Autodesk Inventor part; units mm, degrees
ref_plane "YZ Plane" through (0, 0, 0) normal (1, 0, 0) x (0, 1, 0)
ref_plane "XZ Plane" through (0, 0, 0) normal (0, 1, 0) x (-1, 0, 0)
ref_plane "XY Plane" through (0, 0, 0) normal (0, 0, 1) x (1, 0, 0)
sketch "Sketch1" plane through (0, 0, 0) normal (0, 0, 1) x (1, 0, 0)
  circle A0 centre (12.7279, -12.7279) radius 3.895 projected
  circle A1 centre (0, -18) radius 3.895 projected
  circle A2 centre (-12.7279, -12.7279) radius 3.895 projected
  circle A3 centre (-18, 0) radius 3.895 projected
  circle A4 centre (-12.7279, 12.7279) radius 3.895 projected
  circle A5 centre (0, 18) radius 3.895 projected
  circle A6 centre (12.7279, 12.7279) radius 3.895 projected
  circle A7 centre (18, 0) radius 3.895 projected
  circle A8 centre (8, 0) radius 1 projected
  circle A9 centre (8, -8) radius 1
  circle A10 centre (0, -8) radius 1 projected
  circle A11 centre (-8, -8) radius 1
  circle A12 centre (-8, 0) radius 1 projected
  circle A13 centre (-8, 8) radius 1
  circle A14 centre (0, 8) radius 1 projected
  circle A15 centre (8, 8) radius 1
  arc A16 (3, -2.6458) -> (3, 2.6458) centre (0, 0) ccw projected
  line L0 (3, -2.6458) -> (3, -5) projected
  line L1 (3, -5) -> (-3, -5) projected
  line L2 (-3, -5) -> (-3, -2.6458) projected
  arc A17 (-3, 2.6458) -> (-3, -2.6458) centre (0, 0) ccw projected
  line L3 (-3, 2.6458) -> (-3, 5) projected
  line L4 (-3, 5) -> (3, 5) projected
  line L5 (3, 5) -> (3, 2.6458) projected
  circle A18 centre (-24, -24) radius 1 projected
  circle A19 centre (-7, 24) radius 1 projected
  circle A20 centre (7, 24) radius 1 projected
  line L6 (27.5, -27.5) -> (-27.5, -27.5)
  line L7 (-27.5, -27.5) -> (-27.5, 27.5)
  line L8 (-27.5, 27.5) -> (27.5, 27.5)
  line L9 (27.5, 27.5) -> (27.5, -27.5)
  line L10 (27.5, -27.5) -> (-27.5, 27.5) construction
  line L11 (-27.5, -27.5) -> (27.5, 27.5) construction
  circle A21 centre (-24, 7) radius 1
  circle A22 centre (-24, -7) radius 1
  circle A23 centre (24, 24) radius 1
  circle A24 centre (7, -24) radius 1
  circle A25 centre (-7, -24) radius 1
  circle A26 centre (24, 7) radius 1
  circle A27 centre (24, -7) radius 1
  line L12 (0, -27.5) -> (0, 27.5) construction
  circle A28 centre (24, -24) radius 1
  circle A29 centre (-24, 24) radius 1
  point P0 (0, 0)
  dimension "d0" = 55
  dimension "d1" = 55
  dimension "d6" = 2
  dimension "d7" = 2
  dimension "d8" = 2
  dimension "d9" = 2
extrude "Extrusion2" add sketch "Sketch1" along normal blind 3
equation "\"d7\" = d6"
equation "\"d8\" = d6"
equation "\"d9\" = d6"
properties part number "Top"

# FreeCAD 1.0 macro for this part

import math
import FreeCAD as App
import Part
import Sketcher
Q = App.Units.Quantity


def add_polygon(sketch, points):
    """Adds a closed chain of lines whose ends are joined by coincident constraints."""
    first, n = sketch.GeometryCount, len(points)
    for a, b in zip(points, points[1:] + points[:1]):
        sketch.addGeometry(Part.LineSegment(App.Vector(*a, 0), App.Vector(*b, 0)), False)
    for i in range(n):
        sketch.addConstraint(Sketcher.Constraint("Coincident", first + i, 2, first + (i + 1) % n, 1))

doc = App.newDocument("Part")
params = doc.addObject("Spreadsheet::Sheet", "Params")
for row, (alias, value) in enumerate([
    ("sketch1_diameter", "2 mm"),
    ("sketch1_width", "55 mm"),
    ("sketch1_radius", "4 mm"),
    ("sketch1_diameter2", "7.79 mm"),
    ("sketch1_width2", "6 mm"),
    ("pad1_length", "3 mm"),
], start=1):
    params.set(f"A{row}", alias)
    params.set(f"B{row}", "=" + value)
    params.setAlias(f"B{row}", alias)

body = doc.addObject("PartDesign::Body", "Body")

# Sketch on XY plane
sketch1 = doc.addObject("Sketcher::SketchObject", "Sketch")
body.addObject(sketch1)
sketch1.AttachmentSupport = (doc.XY_Plane, [""])
sketch1.MapMode = "FlatFace"
add_polygon(sketch1, [(-27.5, -27.5), (27.5, -27.5), (27.5, 27.5), (-27.5, 27.5)])  # lines 0-3
sketch1.addGeometry(Part.Circle(App.Vector(-24, -24, 0), App.Vector(0, 0, 1), 1), False)  # 4
sketch1.addGeometry(Part.Circle(App.Vector(-7, -24, 0), App.Vector(0, 0, 1), 1), False)  # 5
sketch1.addGeometry(Part.Circle(App.Vector(-24, -7, 0), App.Vector(0, 0, 1), 1), False)  # 6
sketch1.addGeometry(Part.Circle(App.Vector(-12.7, -12.7, 0), App.Vector(0, 0, 1), 3.9), False)  # 7
sketch1.addGeometry(Part.Circle(App.Vector(-8, -8, 0), App.Vector(0, 0, 1), 1), False)  # 8
sketch1.addGeometry(Part.Circle(App.Vector(7, -24, 0), App.Vector(0, 0, 1), 1), False)  # 9
sketch1.addGeometry(Part.Circle(App.Vector(0, -18, 0), App.Vector(0, 0, 1), 3.9), False)  # 10
sketch1.addGeometry(Part.Circle(App.Vector(24, -24, 0), App.Vector(0, 0, 1), 1), False)  # 11
sketch1.addGeometry(Part.Circle(App.Vector(0, -8, 0), App.Vector(0, 0, 1), 1), False)  # 12
sketch1.addGeometry(Part.Circle(App.Vector(12.7, -12.7, 0), App.Vector(0, 0, 1), 3.9), False)  # 13
sketch1.addGeometry(Part.Circle(App.Vector(8, -8, 0), App.Vector(0, 0, 1), 1), False)  # 14
sketch1.addGeometry(Part.Circle(App.Vector(24, -7, 0), App.Vector(0, 0, 1), 1), False)  # 15
sketch1.addGeometry(Part.Circle(App.Vector(-18, 0, 0), App.Vector(0, 0, 1), 3.9), False)  # 16
sketch1.addGeometry(Part.Circle(App.Vector(-24, 7, 0), App.Vector(0, 0, 1), 1), False)  # 17
sketch1.addGeometry(Part.Circle(App.Vector(-8, 0, 0), App.Vector(0, 0, 1), 1), False)  # 18
sketch1.addGeometry(Part.Circle(App.Vector(-8, 8, 0), App.Vector(0, 0, 1), 1), False)  # 19
sketch1.addGeometry(Part.Circle(App.Vector(-12.7, 12.7, 0), App.Vector(0, 0, 1), 3.9), False)  # 20
sketch1.addGeometry(Part.Circle(App.Vector(-24, 24, 0), App.Vector(0, 0, 1), 1), False)  # 21
sketch1.addGeometry(Part.Circle(App.Vector(-7, 24, 0), App.Vector(0, 0, 1), 1), False)  # 22
sketch1.addGeometry(Part.ArcOfCircle(Part.Circle(App.Vector(0, 0, 0), App.Vector(0, 0, 1), 4), math.radians(-41), math.radians(41)), False)  # 23
sketch1.addGeometry(Part.LineSegment(App.Vector(3, -2.6, 0), App.Vector(3, -5, 0)), False)  # 24
sketch1.addGeometry(Part.LineSegment(App.Vector(3, -5, 0), App.Vector(-3, -5, 0)), False)  # 25
sketch1.addGeometry(Part.LineSegment(App.Vector(-3, -5, 0), App.Vector(-3, -2.6, 0)), False)  # 26
sketch1.addGeometry(Part.ArcOfCircle(Part.Circle(App.Vector(0, 0, 0), App.Vector(0, 0, 1), 4), math.radians(139), math.radians(221)), False)  # 27
sketch1.addGeometry(Part.LineSegment(App.Vector(-3, 2.6, 0), App.Vector(-3, 5, 0)), False)  # 28
sketch1.addGeometry(Part.LineSegment(App.Vector(-3, 5, 0), App.Vector(3, 5, 0)), False)  # 29
sketch1.addGeometry(Part.LineSegment(App.Vector(3, 5, 0), App.Vector(3, 2.6, 0)), False)  # 30
sketch1.addGeometry(Part.Circle(App.Vector(8, 0, 0), App.Vector(0, 0, 1), 1), False)  # 31
sketch1.addGeometry(Part.Circle(App.Vector(0, 8, 0), App.Vector(0, 0, 1), 1), False)  # 32
sketch1.addGeometry(Part.Circle(App.Vector(8, 8, 0), App.Vector(0, 0, 1), 1), False)  # 33
sketch1.addGeometry(Part.Circle(App.Vector(12.7, 12.7, 0), App.Vector(0, 0, 1), 3.9), False)  # 34
sketch1.addGeometry(Part.Circle(App.Vector(18, 0, 0), App.Vector(0, 0, 1), 3.9), False)  # 35
sketch1.addGeometry(Part.Circle(App.Vector(24, 7, 0), App.Vector(0, 0, 1), 1), False)  # 36
sketch1.addGeometry(Part.Circle(App.Vector(0, 18, 0), App.Vector(0, 0, 1), 3.9), False)  # 37
sketch1.addGeometry(Part.Circle(App.Vector(7, 24, 0), App.Vector(0, 0, 1), 1), False)  # 38
sketch1.addGeometry(Part.Circle(App.Vector(24, 24, 0), App.Vector(0, 0, 1), 1), False)  # 39
sketch1.addConstraint([
    Sketcher.Constraint("Coincident", 23, 1, 24, 1),
    Sketcher.Constraint("Coincident", 24, 2, 25, 1),
    Sketcher.Constraint("Coincident", 25, 2, 26, 1),
    Sketcher.Constraint("Coincident", 26, 2, 27, 2),
    Sketcher.Constraint("Coincident", 27, 1, 28, 1),
    Sketcher.Constraint("Coincident", 28, 2, 29, 1),
    Sketcher.Constraint("Coincident", 29, 2, 30, 1),
    Sketcher.Constraint("Coincident", 30, 2, 23, 2),
    Sketcher.Constraint("Horizontal", 0),
    Sketcher.Constraint("Vertical", 1),
    Sketcher.Constraint("Horizontal", 2),
    Sketcher.Constraint("Vertical", 3),
    Sketcher.Constraint("Vertical", 24),
    Sketcher.Constraint("Horizontal", 25),
    Sketcher.Constraint("Vertical", 26),
    Sketcher.Constraint("Vertical", 28),
    Sketcher.Constraint("Horizontal", 29),
    Sketcher.Constraint("Vertical", 30),
    Sketcher.Constraint("Coincident", 23, 3, -1, 1),
    Sketcher.Constraint("Coincident", 27, 3, -1, 1),
    Sketcher.Constraint("Equal", 4, 5),
    Sketcher.Constraint("Equal", 5, 6),
    Sketcher.Constraint("Equal", 6, 8),
    Sketcher.Constraint("Equal", 8, 9),
    Sketcher.Constraint("Equal", 7, 10),
    Sketcher.Constraint("Equal", 9, 11),
    Sketcher.Constraint("Equal", 11, 12),
    Sketcher.Constraint("Equal", 10, 13),
    Sketcher.Constraint("Equal", 12, 14),
    Sketcher.Constraint("Equal", 14, 15),
    Sketcher.Constraint("Equal", 13, 16),
    Sketcher.Constraint("Equal", 15, 17),
    Sketcher.Constraint("Equal", 17, 18),
    Sketcher.Constraint("Equal", 18, 19),
    Sketcher.Constraint("Equal", 16, 20),
    Sketcher.Constraint("Equal", 19, 21),
    Sketcher.Constraint("Equal", 21, 22),
    Sketcher.Constraint("Equal", 23, 27),
    Sketcher.Constraint("Equal", 22, 31),
    Sketcher.Constraint("Equal", 31, 32),
    Sketcher.Constraint("Equal", 32, 33),
    Sketcher.Constraint("Equal", 20, 34),
    Sketcher.Constraint("Equal", 34, 35),
    Sketcher.Constraint("Equal", 33, 36),
    Sketcher.Constraint("Equal", 35, 37),
    Sketcher.Constraint("Equal", 36, 38),
    Sketcher.Constraint("Equal", 38, 39),
    Sketcher.Constraint("Symmetric", 15, 3, 17, 3, -1, 1),
    Sketcher.Constraint("Symmetric", 14, 3, 19, 3, -1, 1),
    Sketcher.Constraint("Symmetric", 13, 3, 20, 3, -1, 1),
    Sketcher.Constraint("Symmetric", 11, 3, 21, 3, -1, 1),
    Sketcher.Constraint("Symmetric", 9, 3, 22, 3, -1, 1),
    Sketcher.Constraint("Symmetric", 18, 3, 31, 3, -1, 1),
    Sketcher.Constraint("Symmetric", 12, 3, 32, 3, -1, 1),
    Sketcher.Constraint("Symmetric", 8, 3, 33, 3, -1, 1),
    Sketcher.Constraint("Symmetric", 7, 3, 34, 3, -1, 1),
    Sketcher.Constraint("Symmetric", 16, 3, 35, 3, -1, 1),
    Sketcher.Constraint("Symmetric", 6, 3, 36, 3, -1, 1),
    Sketcher.Constraint("Symmetric", 10, 3, 37, 3, -1, 1),
    Sketcher.Constraint("Symmetric", 5, 3, 38, 3, -1, 1),
    Sketcher.Constraint("Symmetric", 4, 3, 39, 3, -1, 1),
    Sketcher.Constraint("Symmetric", 0, 2, 2, 2, -1, 1),
    Sketcher.Constraint("Symmetric", 24, 2, 28, 2, -1, 1),
    Sketcher.Constraint("Symmetric", 5, 3, 9, 3, -2),
    Sketcher.Constraint("Symmetric", 4, 3, 11, 3, -2),
    Sketcher.Constraint("Symmetric", 7, 3, 13, 3, -2),
    Sketcher.Constraint("Symmetric", 8, 3, 14, 3, -2),
    Sketcher.Constraint("Symmetric", 6, 3, 15, 3, -2),
    Sketcher.Constraint("PointOnObject", 10, 3, -2),
    Sketcher.Constraint("PointOnObject", 12, 3, -2),
    Sketcher.Constraint("PointOnObject", 16, 3, -1),
    Sketcher.Constraint("PointOnObject", 18, 3, -1),
    Sketcher.Constraint("Horizontal", 4, 3, 5, 3),
    Sketcher.Constraint("Horizontal", 8, 3, 12, 3),
    Sketcher.Constraint("Horizontal", 23, 1, 26, 2),
    Sketcher.Constraint("Horizontal", 27, 1, 30, 2),
    Sketcher.Constraint("Vertical", 4, 3, 6, 3),
    Sketcher.Constraint("Vertical", 8, 3, 18, 3),
    Sketcher.Constraint("Equal", 2, 1),
    Sketcher.Constraint("Diameter", 4, Q("2 mm")),
    Sketcher.Constraint("DistanceX", 0, 1, 0, 2, Q("55 mm")),
    Sketcher.Constraint("Radius", 23, Q("4 mm")),
    Sketcher.Constraint("Diameter", 7, Q("7.79 mm")),
    Sketcher.Constraint("DistanceX", 25, 2, 25, 1, Q("6 mm")),
    Sketcher.Constraint("DistanceX", 4, 3, -1, 1, Q("24 mm")),
    Sketcher.Constraint("DistanceY", 4, 3, -1, 1, Q("24 mm")),
    Sketcher.Constraint("DistanceX", 5, 3, -1, 1, Q("7 mm")),
    Sketcher.Constraint("DistanceY", 6, 3, -1, 1, Q("7 mm")),
    Sketcher.Constraint("DistanceX", 8, 3, -1, 1, Q("8 mm")),
    Sketcher.Constraint("DistanceY", 8, 3, -1, 1, Q("8 mm")),
    Sketcher.Constraint("DistanceY", 10, 3, -1, 1, Q("18 mm")),
    Sketcher.Constraint("DistanceX", 16, 3, -1, 1, Q("18 mm")),
    Sketcher.Constraint("DistanceY", 24, 2, -1, 1, Q("5 mm")),
    Sketcher.Constraint("DistanceX", 7, 3, -1, 1, Q("12.728 mm")),
    Sketcher.Constraint("DistanceY", 7, 3, -1, 1, Q("12.728 mm")),
])
sketch1.setExpression("Constraints[83]", "Params.sketch1_diameter")
sketch1.setExpression("Constraints[84]", "Params.sketch1_width")
sketch1.setExpression("Constraints[85]", "Params.sketch1_radius")
sketch1.setExpression("Constraints[86]", "Params.sketch1_diameter2")
sketch1.setExpression("Constraints[87]", "Params.sketch1_width2")
pad1 = doc.addObject("PartDesign::Pad", "Pad")
body.addObject(pad1)
pad1.Profile = sketch1
pad1.setExpression("Length", "Params.pad1_length")

doc.recompute()
